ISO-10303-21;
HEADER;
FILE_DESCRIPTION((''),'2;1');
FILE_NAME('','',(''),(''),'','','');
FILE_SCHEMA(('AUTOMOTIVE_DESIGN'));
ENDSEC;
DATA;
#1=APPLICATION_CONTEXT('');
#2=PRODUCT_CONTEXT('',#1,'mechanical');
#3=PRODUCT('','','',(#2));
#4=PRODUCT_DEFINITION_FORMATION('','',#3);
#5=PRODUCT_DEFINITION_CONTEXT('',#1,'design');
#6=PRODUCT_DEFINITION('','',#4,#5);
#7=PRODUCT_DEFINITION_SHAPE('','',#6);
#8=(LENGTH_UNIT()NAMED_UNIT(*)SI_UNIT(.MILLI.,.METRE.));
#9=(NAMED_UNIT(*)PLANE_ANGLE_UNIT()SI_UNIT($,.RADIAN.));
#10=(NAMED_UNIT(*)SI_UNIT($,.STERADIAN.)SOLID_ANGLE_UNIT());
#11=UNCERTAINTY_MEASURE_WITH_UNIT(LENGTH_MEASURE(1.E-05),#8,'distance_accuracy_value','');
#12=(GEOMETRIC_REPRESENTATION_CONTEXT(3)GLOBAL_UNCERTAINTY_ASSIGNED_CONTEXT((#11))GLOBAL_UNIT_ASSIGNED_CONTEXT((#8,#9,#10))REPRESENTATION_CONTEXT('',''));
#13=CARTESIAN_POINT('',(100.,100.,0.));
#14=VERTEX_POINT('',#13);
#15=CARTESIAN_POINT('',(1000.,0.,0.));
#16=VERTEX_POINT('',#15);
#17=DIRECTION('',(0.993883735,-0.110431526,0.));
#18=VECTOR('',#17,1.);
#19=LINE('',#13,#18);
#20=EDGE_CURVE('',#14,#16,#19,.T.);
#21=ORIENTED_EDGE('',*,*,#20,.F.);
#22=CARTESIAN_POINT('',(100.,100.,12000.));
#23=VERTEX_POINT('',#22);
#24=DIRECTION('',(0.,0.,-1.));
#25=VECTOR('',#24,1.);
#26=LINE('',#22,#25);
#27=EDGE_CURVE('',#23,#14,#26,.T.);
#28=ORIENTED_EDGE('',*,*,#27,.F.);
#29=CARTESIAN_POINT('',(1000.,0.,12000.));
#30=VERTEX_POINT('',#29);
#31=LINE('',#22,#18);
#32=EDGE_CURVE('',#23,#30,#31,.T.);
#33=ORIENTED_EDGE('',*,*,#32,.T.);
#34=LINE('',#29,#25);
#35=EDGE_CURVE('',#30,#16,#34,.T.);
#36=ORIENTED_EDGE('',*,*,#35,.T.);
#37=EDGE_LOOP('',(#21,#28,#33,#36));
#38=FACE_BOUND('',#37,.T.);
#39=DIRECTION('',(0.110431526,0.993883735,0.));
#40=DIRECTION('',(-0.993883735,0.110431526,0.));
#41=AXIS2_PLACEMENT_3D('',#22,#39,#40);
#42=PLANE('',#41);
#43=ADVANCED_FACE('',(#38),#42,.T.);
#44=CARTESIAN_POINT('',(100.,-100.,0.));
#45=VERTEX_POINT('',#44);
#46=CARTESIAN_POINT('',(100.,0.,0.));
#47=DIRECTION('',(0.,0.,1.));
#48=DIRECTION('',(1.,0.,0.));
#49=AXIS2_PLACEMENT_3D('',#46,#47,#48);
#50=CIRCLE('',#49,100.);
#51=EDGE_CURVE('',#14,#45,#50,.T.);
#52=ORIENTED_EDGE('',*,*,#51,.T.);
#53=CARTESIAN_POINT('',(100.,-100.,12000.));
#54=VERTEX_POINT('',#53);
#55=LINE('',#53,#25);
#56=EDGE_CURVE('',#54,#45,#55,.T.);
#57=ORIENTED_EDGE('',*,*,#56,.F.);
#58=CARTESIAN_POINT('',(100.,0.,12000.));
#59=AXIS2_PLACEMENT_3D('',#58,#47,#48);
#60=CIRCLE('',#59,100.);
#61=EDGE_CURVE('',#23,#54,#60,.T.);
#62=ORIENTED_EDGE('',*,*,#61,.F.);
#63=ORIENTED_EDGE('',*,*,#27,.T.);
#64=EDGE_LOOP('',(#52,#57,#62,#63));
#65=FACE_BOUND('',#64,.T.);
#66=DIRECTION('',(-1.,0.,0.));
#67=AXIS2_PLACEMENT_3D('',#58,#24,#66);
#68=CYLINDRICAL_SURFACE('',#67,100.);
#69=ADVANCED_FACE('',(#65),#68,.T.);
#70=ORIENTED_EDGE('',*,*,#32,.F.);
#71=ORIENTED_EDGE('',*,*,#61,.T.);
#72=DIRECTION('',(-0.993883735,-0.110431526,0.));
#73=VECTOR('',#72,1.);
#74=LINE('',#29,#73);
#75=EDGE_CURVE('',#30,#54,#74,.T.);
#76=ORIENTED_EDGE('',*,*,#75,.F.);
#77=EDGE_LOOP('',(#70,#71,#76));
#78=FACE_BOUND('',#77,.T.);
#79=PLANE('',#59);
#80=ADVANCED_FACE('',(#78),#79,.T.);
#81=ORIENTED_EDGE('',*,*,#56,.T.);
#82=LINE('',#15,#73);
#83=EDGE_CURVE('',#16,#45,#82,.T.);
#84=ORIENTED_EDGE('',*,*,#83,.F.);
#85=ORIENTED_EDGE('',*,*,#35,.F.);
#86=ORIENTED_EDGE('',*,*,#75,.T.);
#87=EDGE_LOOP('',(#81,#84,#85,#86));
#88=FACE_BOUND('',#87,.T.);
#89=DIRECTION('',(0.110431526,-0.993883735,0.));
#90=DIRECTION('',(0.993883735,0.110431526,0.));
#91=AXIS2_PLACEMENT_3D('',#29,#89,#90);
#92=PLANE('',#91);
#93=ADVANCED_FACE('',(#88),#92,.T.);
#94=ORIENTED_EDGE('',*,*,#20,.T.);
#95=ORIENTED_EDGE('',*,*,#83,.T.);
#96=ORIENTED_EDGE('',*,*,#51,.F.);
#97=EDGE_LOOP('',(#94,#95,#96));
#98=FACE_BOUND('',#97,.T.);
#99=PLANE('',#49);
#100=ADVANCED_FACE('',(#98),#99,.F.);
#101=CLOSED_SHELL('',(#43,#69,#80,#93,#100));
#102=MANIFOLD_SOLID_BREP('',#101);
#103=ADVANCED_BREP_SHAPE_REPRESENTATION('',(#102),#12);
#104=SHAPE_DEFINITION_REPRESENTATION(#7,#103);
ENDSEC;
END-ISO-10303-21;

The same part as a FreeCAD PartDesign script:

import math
import FreeCAD as App
import Part
import Sketcher
from FreeCAD import Vector

doc = App.newDocument("Part")
params = doc.addObject("Spreadsheet::Sheet", "Params")
for row, (alias, value) in enumerate([
    ("sketch1_radius", "100 mm"),
    ("pad1_length", "12000 mm"),
], start=1):
    params.set(f"A{row}", alias)
    params.set(f"B{row}", "=" + value)
    params.setAlias(f"B{row}", alias)

body = doc.addObject("PartDesign::Body", "Body")

sketch1 = doc.addObject("Sketcher::SketchObject", "Sketch")
body.addObject(sketch1)
sketch1.AttachmentSupport = (doc.XY_Plane, [""])
sketch1.MapMode = "FlatFace"
sketch1.addGeometry(Part.LineSegment(Vector(1000, 0, 0), Vector(100, 100, 0)), False)
sketch1.addGeometry(Part.ArcOfCircle(Part.Circle(Vector(100, 0, 0), Vector(0, 0, 1), 100), math.radians(90), math.radians(270)), False)
sketch1.addGeometry(Part.LineSegment(Vector(100, -100, 0), Vector(1000, 0, 0)), False)
sketch1.addConstraint(Sketcher.Constraint("Coincident", 0, 2, 1, 1))
sketch1.addConstraint(Sketcher.Constraint("Coincident", 1, 2, 2, 1))
sketch1.addConstraint(Sketcher.Constraint("Coincident", 2, 2, 0, 1))
sketch1.addConstraint(Sketcher.Constraint("Symmetric", 0, 2, 1, 2, -1))
sketch1.addConstraint(Sketcher.Constraint("PointOnObject", 2, 2, -1))
sketch1.addConstraint(Sketcher.Constraint("Vertical", 1, 3, 0, 2))
sketch1.addConstraint(Sketcher.Constraint("Radius", 1, 100.0))
sketch1.addConstraint(Sketcher.Constraint("DistanceX", -1, 1, 1, 3, 100.0))
sketch1.addConstraint(Sketcher.Constraint("DistanceX", -1, 1, 2, 2, 1000.0))
sketch1.setExpression("Constraints[6]", "Params.sketch1_radius")
pad1 = doc.addObject("PartDesign::Pad", "Pad")
body.addObject(pad1)
pad1.Profile = sketch1
pad1.setExpression("Length", "Params.pad1_length")

doc.recompute()
